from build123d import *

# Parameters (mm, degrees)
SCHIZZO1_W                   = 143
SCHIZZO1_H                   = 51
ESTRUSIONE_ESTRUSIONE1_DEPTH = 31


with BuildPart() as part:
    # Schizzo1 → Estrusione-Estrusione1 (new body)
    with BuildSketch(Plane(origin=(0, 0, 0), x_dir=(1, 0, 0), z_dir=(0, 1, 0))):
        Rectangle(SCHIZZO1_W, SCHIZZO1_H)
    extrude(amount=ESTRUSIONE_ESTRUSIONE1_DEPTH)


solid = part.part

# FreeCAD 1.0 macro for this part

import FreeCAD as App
import Part
import Sketcher
Q = App.Units.Quantity


def add_polygon(sketch, points):
    """Adds a closed chain of lines whose ends are joined by coincident constraints."""
    first, n = sketch.GeometryCount, len(points)
    for a, b in zip(points, points[1:] + points[:1]):
        sketch.addGeometry(Part.LineSegment(App.Vector(*a, 0), App.Vector(*b, 0)), False)
    for i in range(n):
        sketch.addConstraint(Sketcher.Constraint("Coincident", first + i, 2, first + (i + 1) % n, 1))

doc = App.newDocument("Part")
body = doc.addObject("PartDesign::Body", "Body")

sketch1 = body.newObject("Sketcher::SketchObject", "Sketch")
sketch1.AttachmentSupport = (doc.getObject("XZ_Plane"), [""])
sketch1.MapMode = "FlatFace"
add_polygon(sketch1, [(-72, -26), (-72, 26), (72, 26), (72, -26)])
sketch1.addConstraint([
    Sketcher.Constraint("Vertical", 0),
    Sketcher.Constraint("Horizontal", 1),
    Sketcher.Constraint("Vertical", 2),
    Sketcher.Constraint("Horizontal", 3),
    Sketcher.Constraint("Symmetric", 0, 2, 2, 2, -1, 1),
    Sketcher.Constraint("DistanceX", 1, 1, 1, 2, Q("143 mm")),
    Sketcher.Constraint("DistanceY", 0, 1, 0, 2, Q("51 mm")),
])
pad1 = body.newObject("PartDesign::Pad", "Pad")
pad1.Profile = sketch1
pad1.Length = 31
pad1.Reversed = True

doc.recompute()
